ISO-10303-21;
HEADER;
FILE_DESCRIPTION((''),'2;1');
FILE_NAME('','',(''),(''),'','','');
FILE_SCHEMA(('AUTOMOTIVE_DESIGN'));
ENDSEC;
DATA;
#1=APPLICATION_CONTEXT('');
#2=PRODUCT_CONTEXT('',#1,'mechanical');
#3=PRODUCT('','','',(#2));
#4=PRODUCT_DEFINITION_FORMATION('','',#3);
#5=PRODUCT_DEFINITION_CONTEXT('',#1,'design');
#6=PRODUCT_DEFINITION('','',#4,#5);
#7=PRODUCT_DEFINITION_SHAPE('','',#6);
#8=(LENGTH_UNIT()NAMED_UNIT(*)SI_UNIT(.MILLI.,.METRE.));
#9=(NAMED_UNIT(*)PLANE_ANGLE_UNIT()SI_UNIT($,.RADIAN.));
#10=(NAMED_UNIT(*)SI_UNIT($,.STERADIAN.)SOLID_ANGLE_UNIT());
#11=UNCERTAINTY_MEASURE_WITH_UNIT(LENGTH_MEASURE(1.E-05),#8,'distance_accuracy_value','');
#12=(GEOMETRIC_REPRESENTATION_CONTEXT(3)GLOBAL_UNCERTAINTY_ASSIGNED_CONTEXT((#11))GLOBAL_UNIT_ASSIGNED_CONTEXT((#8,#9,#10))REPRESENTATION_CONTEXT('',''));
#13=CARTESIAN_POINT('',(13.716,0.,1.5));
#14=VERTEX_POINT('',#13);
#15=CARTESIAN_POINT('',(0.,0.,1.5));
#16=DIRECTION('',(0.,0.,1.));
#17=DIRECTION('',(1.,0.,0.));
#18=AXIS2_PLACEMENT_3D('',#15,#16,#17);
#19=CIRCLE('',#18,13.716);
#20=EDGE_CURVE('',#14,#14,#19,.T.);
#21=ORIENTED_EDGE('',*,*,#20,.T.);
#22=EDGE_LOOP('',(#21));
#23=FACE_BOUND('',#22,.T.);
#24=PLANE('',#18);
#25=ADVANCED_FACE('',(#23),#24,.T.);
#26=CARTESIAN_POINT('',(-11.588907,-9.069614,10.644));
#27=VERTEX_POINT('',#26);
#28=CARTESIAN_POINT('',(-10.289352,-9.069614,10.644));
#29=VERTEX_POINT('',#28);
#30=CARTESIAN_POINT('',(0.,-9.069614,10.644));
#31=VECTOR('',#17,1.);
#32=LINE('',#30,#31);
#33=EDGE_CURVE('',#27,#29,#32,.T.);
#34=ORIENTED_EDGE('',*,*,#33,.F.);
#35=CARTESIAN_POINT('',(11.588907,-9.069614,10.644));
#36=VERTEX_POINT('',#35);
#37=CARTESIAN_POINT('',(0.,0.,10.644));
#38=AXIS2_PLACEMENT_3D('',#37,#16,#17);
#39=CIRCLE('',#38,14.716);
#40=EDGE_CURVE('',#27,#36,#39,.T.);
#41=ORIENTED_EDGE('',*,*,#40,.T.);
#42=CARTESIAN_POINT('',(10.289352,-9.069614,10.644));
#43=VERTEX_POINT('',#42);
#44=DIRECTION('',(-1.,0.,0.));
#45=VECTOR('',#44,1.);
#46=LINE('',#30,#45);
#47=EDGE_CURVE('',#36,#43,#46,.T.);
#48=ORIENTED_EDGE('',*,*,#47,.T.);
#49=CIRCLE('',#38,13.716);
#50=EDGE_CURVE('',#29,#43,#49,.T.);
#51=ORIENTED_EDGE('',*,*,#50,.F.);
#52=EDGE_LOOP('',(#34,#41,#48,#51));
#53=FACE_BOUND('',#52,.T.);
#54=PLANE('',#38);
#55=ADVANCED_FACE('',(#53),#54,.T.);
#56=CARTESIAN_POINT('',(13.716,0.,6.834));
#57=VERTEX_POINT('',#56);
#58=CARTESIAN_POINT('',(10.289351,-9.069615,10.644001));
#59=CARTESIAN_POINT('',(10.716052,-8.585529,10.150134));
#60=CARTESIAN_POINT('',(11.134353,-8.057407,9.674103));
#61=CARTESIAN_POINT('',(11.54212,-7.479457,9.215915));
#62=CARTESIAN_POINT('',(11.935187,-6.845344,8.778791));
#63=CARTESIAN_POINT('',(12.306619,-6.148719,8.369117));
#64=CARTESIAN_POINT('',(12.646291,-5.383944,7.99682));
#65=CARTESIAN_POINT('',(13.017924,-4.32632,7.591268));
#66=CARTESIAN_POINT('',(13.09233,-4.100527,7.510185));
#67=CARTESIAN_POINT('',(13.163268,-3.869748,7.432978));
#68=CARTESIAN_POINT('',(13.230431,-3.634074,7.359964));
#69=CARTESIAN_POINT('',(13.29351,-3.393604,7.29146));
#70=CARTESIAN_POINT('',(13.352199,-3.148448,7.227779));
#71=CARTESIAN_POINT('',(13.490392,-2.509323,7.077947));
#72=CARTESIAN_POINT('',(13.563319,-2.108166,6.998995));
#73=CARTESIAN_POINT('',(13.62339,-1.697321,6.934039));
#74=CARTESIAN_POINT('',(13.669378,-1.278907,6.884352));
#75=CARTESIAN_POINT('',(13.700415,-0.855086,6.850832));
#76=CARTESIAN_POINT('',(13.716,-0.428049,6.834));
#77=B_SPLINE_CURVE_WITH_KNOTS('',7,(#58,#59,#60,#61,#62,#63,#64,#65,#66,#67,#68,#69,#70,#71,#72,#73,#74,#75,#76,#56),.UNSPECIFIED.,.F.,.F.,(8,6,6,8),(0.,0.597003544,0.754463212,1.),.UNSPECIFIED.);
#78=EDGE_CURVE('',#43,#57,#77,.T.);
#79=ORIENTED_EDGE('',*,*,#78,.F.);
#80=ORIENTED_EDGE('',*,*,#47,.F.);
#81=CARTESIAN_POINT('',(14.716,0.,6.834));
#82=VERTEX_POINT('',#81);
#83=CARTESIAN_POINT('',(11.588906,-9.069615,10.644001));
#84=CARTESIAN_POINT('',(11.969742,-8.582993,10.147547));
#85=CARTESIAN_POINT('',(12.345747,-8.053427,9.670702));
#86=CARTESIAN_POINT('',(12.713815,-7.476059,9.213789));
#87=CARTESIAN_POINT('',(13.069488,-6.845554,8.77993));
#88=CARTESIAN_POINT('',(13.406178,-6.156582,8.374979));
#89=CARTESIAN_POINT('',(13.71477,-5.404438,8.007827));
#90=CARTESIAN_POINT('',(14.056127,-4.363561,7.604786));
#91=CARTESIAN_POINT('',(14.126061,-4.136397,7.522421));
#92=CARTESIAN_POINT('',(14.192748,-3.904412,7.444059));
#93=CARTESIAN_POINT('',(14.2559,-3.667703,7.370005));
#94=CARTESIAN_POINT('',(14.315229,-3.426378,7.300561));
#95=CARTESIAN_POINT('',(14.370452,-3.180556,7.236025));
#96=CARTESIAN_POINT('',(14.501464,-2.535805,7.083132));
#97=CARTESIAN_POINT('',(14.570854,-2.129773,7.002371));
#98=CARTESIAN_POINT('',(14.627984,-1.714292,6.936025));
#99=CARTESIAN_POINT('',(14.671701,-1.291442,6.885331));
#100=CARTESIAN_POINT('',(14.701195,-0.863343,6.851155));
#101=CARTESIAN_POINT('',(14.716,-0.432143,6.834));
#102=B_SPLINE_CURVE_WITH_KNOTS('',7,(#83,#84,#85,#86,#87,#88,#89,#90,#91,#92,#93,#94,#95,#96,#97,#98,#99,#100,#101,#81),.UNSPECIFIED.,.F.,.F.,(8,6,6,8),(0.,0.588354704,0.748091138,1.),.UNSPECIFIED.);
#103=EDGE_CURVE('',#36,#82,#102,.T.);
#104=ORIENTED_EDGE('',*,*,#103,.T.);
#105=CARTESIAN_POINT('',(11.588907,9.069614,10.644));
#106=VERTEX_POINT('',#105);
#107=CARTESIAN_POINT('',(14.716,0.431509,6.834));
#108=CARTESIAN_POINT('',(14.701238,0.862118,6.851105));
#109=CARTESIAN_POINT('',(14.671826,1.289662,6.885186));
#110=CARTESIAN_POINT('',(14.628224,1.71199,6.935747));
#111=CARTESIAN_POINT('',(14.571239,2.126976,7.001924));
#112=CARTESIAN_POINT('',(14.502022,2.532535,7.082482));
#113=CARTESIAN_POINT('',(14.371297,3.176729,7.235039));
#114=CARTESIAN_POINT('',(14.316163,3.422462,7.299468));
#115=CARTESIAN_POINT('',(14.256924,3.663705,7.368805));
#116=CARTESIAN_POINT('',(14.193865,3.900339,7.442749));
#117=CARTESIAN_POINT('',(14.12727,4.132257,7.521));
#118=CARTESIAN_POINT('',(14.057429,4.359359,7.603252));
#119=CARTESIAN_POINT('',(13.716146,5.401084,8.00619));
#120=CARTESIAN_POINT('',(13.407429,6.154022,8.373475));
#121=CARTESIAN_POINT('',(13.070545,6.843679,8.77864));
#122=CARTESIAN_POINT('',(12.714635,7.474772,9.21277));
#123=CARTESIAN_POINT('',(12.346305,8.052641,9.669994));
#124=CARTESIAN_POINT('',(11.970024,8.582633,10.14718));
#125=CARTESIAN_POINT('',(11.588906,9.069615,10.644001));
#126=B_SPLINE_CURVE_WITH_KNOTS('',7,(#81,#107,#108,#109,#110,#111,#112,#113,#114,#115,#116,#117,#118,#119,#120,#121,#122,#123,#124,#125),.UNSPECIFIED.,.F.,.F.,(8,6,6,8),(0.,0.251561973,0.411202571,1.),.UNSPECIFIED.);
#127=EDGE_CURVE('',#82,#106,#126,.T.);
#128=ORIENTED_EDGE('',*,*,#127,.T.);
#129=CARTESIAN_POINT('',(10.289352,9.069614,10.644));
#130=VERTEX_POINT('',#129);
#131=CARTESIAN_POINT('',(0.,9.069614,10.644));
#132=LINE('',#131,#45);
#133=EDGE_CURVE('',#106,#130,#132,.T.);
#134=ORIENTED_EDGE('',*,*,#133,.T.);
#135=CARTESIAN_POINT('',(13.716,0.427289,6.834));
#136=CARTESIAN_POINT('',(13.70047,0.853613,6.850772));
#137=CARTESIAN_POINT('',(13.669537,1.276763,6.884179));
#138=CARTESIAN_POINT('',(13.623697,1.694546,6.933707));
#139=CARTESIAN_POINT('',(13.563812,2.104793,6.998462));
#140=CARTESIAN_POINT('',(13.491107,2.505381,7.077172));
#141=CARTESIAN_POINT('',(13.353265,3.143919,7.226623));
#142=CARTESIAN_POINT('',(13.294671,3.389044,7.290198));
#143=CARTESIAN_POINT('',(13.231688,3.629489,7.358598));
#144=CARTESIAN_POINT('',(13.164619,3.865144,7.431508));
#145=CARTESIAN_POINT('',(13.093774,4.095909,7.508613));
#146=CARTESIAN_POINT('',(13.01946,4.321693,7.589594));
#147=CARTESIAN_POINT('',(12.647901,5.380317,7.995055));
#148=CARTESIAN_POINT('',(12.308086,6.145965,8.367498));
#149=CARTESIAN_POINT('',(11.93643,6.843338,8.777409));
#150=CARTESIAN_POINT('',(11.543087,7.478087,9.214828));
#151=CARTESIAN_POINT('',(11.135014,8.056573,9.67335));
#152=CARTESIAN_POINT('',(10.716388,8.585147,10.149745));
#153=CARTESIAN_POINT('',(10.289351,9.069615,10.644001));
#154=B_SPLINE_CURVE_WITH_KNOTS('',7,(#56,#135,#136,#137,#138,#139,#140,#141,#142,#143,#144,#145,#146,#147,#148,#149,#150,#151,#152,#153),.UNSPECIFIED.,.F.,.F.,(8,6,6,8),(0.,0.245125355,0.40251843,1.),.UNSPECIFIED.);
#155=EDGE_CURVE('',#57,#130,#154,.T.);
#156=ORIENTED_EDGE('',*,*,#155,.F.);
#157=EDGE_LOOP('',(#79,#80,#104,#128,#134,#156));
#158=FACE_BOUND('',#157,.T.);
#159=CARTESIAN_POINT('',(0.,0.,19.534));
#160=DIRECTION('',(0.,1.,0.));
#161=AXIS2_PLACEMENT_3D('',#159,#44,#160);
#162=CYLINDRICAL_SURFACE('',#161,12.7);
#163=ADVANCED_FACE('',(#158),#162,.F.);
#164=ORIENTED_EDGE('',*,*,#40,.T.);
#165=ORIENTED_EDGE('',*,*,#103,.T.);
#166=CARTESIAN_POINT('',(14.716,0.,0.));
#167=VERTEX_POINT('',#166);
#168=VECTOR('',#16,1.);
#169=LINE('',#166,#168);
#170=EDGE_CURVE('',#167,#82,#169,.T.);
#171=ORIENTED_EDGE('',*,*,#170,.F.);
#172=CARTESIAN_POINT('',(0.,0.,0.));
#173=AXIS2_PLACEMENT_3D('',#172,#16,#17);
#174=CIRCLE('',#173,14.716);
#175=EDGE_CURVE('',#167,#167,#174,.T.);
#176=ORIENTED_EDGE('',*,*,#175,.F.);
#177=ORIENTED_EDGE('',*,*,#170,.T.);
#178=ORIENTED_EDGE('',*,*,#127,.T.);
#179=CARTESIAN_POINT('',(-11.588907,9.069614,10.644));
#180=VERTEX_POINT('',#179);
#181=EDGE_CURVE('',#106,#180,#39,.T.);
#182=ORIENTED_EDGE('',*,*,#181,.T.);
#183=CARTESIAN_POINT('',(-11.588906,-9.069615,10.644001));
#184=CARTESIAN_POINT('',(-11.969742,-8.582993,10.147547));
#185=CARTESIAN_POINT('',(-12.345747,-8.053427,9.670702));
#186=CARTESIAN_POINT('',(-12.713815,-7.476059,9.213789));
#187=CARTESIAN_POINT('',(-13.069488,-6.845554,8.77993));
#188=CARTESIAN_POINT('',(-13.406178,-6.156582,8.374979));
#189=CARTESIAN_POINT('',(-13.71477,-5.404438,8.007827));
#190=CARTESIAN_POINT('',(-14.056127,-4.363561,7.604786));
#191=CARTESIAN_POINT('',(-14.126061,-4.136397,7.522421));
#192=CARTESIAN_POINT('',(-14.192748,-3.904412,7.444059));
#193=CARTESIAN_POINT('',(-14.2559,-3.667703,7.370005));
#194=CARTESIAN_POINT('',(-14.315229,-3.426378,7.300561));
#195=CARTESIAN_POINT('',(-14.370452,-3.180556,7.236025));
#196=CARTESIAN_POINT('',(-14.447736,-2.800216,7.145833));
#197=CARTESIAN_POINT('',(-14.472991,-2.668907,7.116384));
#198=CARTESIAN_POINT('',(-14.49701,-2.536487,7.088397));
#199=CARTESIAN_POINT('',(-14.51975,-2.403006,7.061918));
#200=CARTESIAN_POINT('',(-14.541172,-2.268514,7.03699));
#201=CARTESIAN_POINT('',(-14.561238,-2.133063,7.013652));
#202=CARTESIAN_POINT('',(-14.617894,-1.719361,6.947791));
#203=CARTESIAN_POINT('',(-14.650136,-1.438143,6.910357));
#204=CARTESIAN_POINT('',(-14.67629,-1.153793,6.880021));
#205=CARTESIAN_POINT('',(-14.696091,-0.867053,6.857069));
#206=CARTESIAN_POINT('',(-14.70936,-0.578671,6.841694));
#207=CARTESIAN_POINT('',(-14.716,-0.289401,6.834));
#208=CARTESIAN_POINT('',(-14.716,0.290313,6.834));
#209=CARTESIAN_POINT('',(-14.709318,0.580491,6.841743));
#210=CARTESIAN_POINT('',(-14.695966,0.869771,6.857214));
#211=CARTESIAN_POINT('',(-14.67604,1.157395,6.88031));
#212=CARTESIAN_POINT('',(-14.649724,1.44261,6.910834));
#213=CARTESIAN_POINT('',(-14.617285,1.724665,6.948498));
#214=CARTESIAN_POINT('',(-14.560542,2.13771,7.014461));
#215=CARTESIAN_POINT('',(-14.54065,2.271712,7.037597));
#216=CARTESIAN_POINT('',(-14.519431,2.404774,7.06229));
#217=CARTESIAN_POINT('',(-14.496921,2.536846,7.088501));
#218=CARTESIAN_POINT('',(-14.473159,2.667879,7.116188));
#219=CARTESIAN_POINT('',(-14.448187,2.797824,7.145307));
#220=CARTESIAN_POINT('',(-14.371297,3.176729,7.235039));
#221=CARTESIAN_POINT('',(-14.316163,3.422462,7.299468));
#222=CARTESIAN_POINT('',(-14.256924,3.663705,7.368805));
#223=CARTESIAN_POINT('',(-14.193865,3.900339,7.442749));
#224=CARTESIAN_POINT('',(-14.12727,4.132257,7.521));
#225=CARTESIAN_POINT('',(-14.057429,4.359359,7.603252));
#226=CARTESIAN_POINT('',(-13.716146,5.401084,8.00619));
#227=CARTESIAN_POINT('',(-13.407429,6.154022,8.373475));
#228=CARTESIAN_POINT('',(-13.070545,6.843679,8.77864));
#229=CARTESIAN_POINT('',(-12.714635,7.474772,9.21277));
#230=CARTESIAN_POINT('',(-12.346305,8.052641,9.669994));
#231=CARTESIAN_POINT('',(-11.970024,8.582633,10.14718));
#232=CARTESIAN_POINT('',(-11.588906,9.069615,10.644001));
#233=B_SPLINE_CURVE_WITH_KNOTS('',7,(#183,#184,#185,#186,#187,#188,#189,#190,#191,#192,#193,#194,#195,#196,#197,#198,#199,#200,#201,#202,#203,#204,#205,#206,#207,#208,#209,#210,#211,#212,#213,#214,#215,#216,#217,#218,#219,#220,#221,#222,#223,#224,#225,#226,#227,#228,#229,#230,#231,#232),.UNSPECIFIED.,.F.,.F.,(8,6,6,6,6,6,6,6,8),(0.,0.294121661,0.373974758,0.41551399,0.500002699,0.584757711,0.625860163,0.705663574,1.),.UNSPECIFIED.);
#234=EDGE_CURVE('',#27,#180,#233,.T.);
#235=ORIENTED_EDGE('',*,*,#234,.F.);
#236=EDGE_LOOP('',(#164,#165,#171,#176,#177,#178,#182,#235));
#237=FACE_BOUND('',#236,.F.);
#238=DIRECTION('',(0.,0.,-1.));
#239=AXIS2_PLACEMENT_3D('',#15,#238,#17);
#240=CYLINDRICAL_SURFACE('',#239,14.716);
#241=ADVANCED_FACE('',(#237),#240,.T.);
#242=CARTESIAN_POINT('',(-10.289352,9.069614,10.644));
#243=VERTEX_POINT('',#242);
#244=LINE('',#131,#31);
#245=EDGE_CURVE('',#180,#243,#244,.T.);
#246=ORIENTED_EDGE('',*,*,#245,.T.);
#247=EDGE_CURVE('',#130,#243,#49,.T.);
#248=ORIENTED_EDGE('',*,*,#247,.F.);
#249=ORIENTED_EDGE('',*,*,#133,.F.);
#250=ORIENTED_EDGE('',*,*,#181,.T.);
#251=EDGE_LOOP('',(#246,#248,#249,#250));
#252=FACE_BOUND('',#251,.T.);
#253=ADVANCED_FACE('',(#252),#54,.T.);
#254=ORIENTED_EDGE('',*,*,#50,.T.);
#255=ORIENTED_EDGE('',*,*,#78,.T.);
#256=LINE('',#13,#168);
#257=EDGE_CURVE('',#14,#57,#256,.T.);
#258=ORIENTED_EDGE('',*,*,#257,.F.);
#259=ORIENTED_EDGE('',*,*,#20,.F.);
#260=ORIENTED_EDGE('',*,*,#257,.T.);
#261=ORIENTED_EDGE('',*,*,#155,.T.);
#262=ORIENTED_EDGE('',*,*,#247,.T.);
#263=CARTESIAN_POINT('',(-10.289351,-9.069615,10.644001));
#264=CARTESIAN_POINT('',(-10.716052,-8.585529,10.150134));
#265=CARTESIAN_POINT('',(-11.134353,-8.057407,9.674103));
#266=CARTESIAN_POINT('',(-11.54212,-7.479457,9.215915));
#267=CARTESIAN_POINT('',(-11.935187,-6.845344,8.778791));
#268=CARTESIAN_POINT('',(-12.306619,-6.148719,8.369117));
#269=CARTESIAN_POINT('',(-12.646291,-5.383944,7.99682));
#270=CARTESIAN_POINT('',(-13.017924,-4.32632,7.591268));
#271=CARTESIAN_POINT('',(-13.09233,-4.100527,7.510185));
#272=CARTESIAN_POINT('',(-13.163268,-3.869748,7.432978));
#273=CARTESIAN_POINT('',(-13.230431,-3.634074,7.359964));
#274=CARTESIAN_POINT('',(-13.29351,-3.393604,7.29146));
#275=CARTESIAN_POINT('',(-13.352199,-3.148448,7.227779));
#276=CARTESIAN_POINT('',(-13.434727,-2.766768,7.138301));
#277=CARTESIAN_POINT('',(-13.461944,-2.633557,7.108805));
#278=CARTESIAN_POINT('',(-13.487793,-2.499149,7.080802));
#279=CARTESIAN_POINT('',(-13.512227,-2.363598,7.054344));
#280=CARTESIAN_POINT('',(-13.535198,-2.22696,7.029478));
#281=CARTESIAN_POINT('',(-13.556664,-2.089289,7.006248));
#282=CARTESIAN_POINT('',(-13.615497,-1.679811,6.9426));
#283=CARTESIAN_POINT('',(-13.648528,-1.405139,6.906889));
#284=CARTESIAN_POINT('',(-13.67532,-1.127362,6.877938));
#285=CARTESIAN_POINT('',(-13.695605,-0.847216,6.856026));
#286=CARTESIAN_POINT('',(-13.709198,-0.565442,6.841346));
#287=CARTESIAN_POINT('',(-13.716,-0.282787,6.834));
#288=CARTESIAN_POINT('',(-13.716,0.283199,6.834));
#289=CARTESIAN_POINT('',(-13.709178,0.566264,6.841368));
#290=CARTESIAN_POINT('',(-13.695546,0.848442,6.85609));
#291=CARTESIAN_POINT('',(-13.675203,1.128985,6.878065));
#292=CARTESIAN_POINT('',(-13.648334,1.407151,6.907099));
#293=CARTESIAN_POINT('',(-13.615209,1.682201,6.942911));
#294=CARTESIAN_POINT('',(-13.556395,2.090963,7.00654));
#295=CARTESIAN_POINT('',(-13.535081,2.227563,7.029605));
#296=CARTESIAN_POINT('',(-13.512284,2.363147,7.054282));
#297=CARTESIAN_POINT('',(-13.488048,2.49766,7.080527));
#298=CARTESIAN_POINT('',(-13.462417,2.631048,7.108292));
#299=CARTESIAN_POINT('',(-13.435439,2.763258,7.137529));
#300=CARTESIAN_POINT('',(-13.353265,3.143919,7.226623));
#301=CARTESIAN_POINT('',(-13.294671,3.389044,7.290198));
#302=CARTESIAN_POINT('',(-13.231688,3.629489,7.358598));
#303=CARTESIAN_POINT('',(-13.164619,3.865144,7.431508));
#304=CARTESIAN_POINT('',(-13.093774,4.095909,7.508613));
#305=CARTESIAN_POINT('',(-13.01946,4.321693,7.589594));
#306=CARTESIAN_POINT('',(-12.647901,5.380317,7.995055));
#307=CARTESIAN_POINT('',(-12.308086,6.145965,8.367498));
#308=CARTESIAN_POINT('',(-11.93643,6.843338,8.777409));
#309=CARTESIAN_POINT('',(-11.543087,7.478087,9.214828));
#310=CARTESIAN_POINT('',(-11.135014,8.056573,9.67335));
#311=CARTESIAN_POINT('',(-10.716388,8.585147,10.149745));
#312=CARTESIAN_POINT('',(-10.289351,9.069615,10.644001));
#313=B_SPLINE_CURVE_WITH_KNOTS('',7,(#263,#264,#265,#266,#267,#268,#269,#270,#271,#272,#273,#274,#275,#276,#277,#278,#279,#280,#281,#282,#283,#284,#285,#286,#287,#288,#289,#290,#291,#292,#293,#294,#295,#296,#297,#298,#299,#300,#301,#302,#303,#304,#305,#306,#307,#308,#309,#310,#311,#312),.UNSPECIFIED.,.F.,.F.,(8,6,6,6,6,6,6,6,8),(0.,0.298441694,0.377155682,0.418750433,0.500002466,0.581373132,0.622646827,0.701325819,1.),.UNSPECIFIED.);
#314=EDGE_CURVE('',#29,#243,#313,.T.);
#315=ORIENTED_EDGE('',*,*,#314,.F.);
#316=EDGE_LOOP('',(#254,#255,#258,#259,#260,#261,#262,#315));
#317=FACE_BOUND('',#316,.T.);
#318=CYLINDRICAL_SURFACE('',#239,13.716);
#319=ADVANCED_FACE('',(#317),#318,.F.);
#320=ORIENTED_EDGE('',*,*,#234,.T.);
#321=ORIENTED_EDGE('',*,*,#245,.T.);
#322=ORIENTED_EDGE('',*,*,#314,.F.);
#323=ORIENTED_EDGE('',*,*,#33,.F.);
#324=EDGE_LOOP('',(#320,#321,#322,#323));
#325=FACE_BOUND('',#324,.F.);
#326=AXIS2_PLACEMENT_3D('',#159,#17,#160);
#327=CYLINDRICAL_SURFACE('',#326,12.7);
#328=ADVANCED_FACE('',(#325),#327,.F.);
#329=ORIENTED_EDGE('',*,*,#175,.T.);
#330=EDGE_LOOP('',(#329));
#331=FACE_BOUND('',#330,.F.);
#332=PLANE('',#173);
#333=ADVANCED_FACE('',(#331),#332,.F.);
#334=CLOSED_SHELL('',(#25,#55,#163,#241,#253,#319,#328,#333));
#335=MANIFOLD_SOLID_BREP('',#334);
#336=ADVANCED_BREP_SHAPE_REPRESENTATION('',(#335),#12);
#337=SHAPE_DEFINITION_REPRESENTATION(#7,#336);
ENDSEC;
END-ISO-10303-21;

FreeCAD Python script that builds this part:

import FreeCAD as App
import Part
import Sketcher
from FreeCAD import Vector
Q = App.Units.Quantity

doc = App.newDocument("Part")
body = doc.addObject("PartDesign::Body", "Body")

sketch1 = doc.addObject("Sketcher::SketchObject", "Sketch")
body.addObject(sketch1)
sketch1.AttachmentSupport = (doc.XY_Plane, [""])
sketch1.MapMode = "FlatFace"
sketch1.addGeometry(Part.Circle(Vector(0, 0, 0), Vector(0, 0, 1), 15), False)
sketch1.addConstraint(Sketcher.Constraint("Coincident", 0, 3, -1, 1))
sketch1.addConstraint(Sketcher.Constraint("Diameter", 0, Q("29.432 mm")))
pad1 = doc.addObject("PartDesign::Pad", "Pad")
body.addObject(pad1)
pad1.Profile = sketch1
pad1.Length = 1.5

sketch2 = doc.addObject("Sketcher::SketchObject", "Sketch001")
body.addObject(sketch2)
sketch2.AttachmentSupport = (doc.XY_Plane, [""])
sketch2.MapMode = "FlatFace"
sketch2.AttachmentOffset = App.Placement(Vector(0, 0, 1.5), App.Rotation())
sketch2.addGeometry(Part.Circle(Vector(0, 0, 0), Vector(0, 0, 1), 15), False)
sketch2.addGeometry(Part.Circle(Vector(0, 0, 0), Vector(0, 0, 1), 14), False)
sketch2.addConstraint(Sketcher.Constraint("Coincident", 0, 3, -1, 1))
sketch2.addConstraint(Sketcher.Constraint("Coincident", 1, 3, -1, 1))
sketch2.addConstraint(Sketcher.Constraint("Diameter", 1, Q("1.08 in")))
sketch2.addConstraint(Sketcher.Constraint("Diameter", 0, Q("29.432 mm")))
pad2 = doc.addObject("PartDesign::Pad", "Pad001")
body.addObject(pad2)
pad2.Profile = sketch2
pad2.Length = Q("0.36 in")

sketch3 = doc.addObject("Sketcher::SketchObject", "Sketch002")
body.addObject(sketch3)
sketch3.AttachmentSupport = (doc.YZ_Plane, [""])
sketch3.MapMode = "FlatFace"
sketch3.addGeometry(Part.Circle(Vector(0, 20, 0), Vector(0, 0, 1), 13), False)
sketch3.addConstraint(Sketcher.Constraint("PointOnObject", 0, 3, -2))
sketch3.addConstraint(Sketcher.Constraint("Diameter", 0, Q("1 in")))
sketch3.addConstraint(Sketcher.Constraint("DistanceY", -1, 1, 0, 3, Q("19.534 mm")))
pocket1 = doc.addObject("PartDesign::Pocket", "Pocket")
body.addObject(pocket1)
pocket1.Profile = sketch3
pocket1.Type = "ThroughAll"
pocket1.Midplane = True

doc.recompute()
